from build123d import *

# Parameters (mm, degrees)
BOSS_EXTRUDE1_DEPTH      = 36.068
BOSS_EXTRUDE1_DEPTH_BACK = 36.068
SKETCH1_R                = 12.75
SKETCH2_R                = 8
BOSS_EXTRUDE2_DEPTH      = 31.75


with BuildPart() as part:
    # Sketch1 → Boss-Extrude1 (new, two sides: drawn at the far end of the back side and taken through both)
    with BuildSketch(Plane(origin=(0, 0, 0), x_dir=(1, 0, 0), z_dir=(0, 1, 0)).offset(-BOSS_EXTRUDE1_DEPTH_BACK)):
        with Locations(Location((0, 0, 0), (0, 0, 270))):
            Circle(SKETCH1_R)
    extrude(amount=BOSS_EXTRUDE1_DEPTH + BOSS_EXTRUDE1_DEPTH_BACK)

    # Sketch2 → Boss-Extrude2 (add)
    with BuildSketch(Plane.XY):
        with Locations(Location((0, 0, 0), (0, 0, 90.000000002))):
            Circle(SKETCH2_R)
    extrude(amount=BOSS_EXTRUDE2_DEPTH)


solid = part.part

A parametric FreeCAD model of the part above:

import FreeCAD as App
import Part
import Sketcher
from FreeCAD import Vector

doc = App.newDocument("Part")
body = doc.addObject("PartDesign::Body", "Body")

# Sketch on XZ plane
sketch1 = body.newObject("Sketcher::SketchObject", "Sketch")
sketch1.AttachmentSupport = (doc.getObject("XZ_Plane"), [""])
sketch1.MapMode = "FlatFace"
sketch1.addGeometry(Part.Circle(Vector(0, 0, 0), Vector(0, 0, 1), 13), False)
sketch1.addConstraint([
    Sketcher.Constraint("Coincident", 0, 3, -1, 1),
    Sketcher.Constraint("Diameter", 0, 25.5),
])
pad1 = body.newObject("PartDesign::Pad", "Pad")
pad1.Profile = sketch1
pad1.Type = "TwoLengths"
pad1.Length = 36.068
pad1.Length2 = 36.068
pad1.Reversed = True

# Sketch on XY plane
sketch2 = body.newObject("Sketcher::SketchObject", "Sketch001")
sketch2.AttachmentSupport = (doc.getObject("XY_Plane"), [""])
sketch2.MapMode = "FlatFace"
sketch2.addGeometry(Part.Circle(Vector(0, 0, 0), Vector(0, 0, 1), 8), False)
sketch2.addConstraint([
    Sketcher.Constraint("Coincident", 0, 3, -1, 1),
    Sketcher.Constraint("Diameter", 0, 16.0),
])
pad2 = body.newObject("PartDesign::Pad", "Pad001")
pad2.Profile = sketch2
pad2.Length = 31.75

doc.recompute()
